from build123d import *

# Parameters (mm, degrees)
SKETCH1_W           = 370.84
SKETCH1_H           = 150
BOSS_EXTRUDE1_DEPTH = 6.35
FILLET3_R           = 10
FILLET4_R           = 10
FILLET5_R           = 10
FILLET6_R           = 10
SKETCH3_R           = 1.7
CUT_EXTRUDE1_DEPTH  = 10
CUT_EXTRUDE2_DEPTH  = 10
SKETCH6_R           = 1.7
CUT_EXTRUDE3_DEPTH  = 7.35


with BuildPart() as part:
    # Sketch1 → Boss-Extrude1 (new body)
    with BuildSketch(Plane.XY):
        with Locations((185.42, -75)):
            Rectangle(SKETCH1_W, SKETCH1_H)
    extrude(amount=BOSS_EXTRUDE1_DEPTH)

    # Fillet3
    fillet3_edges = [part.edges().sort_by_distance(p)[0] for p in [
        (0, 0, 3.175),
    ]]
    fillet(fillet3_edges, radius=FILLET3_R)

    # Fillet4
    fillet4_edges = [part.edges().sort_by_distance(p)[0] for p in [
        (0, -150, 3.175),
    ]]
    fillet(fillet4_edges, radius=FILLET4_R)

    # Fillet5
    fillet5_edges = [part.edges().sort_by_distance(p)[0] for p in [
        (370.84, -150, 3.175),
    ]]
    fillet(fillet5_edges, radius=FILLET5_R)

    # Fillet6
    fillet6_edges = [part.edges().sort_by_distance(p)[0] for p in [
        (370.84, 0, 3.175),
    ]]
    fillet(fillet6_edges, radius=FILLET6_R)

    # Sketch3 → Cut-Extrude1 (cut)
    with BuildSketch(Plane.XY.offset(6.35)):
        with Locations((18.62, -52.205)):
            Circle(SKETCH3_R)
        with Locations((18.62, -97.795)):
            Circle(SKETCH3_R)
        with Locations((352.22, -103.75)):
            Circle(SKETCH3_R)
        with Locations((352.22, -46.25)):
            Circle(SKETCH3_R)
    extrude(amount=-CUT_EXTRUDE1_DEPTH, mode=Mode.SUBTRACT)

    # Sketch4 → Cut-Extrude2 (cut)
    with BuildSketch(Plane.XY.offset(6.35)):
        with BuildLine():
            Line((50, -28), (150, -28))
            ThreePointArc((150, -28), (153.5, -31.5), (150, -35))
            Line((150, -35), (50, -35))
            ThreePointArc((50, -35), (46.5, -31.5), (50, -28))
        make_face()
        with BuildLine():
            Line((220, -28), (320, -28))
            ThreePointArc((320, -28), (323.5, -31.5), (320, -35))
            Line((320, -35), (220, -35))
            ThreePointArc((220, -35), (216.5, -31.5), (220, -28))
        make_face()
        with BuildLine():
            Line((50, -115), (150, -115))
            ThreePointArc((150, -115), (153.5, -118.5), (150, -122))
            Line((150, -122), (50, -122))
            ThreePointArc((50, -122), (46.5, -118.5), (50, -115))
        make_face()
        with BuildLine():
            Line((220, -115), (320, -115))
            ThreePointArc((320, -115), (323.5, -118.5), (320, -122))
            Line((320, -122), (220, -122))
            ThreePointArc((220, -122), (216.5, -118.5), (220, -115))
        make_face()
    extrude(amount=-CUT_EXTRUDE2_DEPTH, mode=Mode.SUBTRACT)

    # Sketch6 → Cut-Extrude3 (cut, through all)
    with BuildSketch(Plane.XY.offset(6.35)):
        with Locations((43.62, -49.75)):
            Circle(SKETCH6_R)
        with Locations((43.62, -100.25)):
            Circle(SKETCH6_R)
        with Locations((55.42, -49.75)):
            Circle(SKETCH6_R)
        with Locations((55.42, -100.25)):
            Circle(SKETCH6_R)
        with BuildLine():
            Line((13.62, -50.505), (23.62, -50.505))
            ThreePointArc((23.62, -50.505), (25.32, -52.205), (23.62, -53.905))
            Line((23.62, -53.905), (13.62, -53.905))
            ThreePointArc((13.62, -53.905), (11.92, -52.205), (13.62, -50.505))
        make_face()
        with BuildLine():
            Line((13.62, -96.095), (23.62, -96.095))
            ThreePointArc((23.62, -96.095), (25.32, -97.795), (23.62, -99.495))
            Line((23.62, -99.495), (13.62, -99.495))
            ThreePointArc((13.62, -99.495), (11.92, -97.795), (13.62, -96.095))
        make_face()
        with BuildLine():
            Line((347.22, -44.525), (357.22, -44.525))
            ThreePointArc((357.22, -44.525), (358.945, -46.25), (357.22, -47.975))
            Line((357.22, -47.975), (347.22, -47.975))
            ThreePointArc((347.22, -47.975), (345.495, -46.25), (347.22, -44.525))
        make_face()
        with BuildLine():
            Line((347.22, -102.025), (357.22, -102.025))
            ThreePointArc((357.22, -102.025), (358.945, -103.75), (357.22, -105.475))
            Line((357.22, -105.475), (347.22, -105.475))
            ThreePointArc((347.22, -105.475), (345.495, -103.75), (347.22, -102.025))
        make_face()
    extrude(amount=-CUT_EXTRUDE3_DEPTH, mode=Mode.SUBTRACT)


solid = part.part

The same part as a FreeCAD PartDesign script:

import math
import FreeCAD as App
import Part
import Sketcher
from FreeCAD import Vector
Q = App.Units.Quantity


def edges_at(feature, points):
    """Names of the edges that pass closest to the given points."""
    edges = feature.Shape.Edges
    near = lambda p: min(range(len(edges)), key=lambda i: edges[i].distToShape(Part.Vertex(*p))[0])
    return sorted({f"Edge{near(p) + 1}" for p in points})


def add_polygon(sketch, points):
    """Adds a closed chain of lines whose ends are joined by coincident constraints."""
    first, n = sketch.GeometryCount, len(points)
    for a, b in zip(points, points[1:] + points[:1]):
        sketch.addGeometry(Part.LineSegment(App.Vector(*a, 0), App.Vector(*b, 0)), False)
    for i in range(n):
        sketch.addConstraint(Sketcher.Constraint("Coincident", first + i, 2, first + (i + 1) % n, 1))

doc = App.newDocument("Part")
body = doc.addObject("PartDesign::Body", "Body")

# Sketch on XY plane
sketch1 = body.newObject("Sketcher::SketchObject", "Sketch")
sketch1.AttachmentSupport = (doc.getObject("XY_Plane"), [""])
sketch1.MapMode = "FlatFace"
add_polygon(sketch1, [(0, 0), (0, -150), (371, -150), (371, 0)])  # lines 0-3
sketch1.addConstraint([
    Sketcher.Constraint("Vertical", 0),
    Sketcher.Constraint("Horizontal", 1),
    Sketcher.Constraint("Vertical", 2),
    Sketcher.Constraint("Horizontal", 3),
    Sketcher.Constraint("Coincident", 3, 2, -1, 1),
    Sketcher.Constraint("DistanceY", 0, 2, 0, 1, Q("150 mm")),
    Sketcher.Constraint("DistanceX", 1, 1, 1, 2, Q("370.84 mm")),
])
pad1 = body.newObject("PartDesign::Pad", "Pad")
pad1.Profile = sketch1
pad1.Length = 6.35
doc.recompute()

fillet = body.newObject("PartDesign::Fillet", "Fillet")
fillet.Base = (pad1, edges_at(pad1, [(0, 0, 3.175)]))
fillet.Radius = 10
doc.recompute()

fillet2 = body.newObject("PartDesign::Fillet", "Fillet001")
fillet2.Base = (fillet, edges_at(fillet, [(0, -150, 3.175)]))
fillet2.Radius = 10
doc.recompute()

fillet3 = body.newObject("PartDesign::Fillet", "Fillet002")
fillet3.Base = (fillet2, edges_at(fillet2, [(370.84, -150, 3.175)]))
fillet3.Radius = 10
doc.recompute()

fillet4 = body.newObject("PartDesign::Fillet", "Fillet003")
fillet4.Base = (fillet3, edges_at(fillet3, [(370.84, 0, 3.175)]))
fillet4.Radius = 10

# Sketch on XY plane
sketch2 = body.newObject("Sketcher::SketchObject", "Sketch001")
sketch2.AttachmentSupport = (doc.getObject("XY_Plane"), [""])
sketch2.MapMode = "FlatFace"
sketch2.AttachmentOffset = App.Placement(Vector(0, 0, 6.35), App.Rotation())
sketch2.addGeometry([
    Part.Circle(Vector(18.6, -52.2, 0), Vector(0, 0, 1), 1.7),
    Part.Circle(Vector(18.6, -97.8, 0), Vector(0, 0, 1), 1.7),
    Part.Circle(Vector(352.2, -103.8, 0), Vector(0, 0, 1), 1.7),
    Part.Circle(Vector(352.2, -46.2, 0), Vector(0, 0, 1), 1.7),
], False)
sketch2.addConstraint([
    Sketcher.Constraint("Equal", 0, 1),
    Sketcher.Constraint("Equal", 1, 2),
    Sketcher.Constraint("Equal", 2, 3),
    Sketcher.Constraint("Vertical", 0, 3, 1, 3),
    Sketcher.Constraint("Vertical", 2, 3, 3, 3),
    Sketcher.Constraint("Diameter", 0, Q("3.4 mm")),
    Sketcher.Constraint("DistanceX", 1, 3, 2, 3, Q("333.6 mm")),
    Sketcher.Constraint("DistanceY", 2, 3, 3, 3, Q("57.5 mm")),
    Sketcher.Constraint("DistanceX", -1, 1, 0, 3, Q("18.62 mm")),
    Sketcher.Constraint("DistanceY", 2, 3, -1, 1, Q("103.75 mm")),
    Sketcher.Constraint("DistanceY", 1, 3, 0, 3, Q("45.59 mm")),
    Sketcher.Constraint("DistanceY", 0, 3, -1, 1, Q("52.205 mm")),
])
pocket1 = body.newObject("PartDesign::Pocket", "Pocket")
pocket1.Profile = sketch2
pocket1.Length = 10

# Sketch on XY plane
sketch3 = body.newObject("Sketcher::SketchObject", "Sketch002")
sketch3.AttachmentSupport = (doc.getObject("XY_Plane"), [""])
sketch3.MapMode = "FlatFace"
sketch3.AttachmentOffset = App.Placement(Vector(0, 0, 6.35), App.Rotation())
sketch3.addGeometry([
    Part.LineSegment(Vector(150, -28, 0), Vector(50, -28, 0)),  # 0
    Part.ArcOfCircle(Part.Circle(Vector(50, -31.5, 0), Vector(0, 0, 1), 3.5), math.radians(90), math.radians(270)),  # 1
    Part.LineSegment(Vector(50, -35, 0), Vector(150, -35, 0)),  # 2
    Part.ArcOfCircle(Part.Circle(Vector(150, -31.5, 0), Vector(0, 0, 1), 3.5), math.radians(-90), math.radians(90)),  # 3
    Part.LineSegment(Vector(320, -28, 0), Vector(220, -28, 0)),  # 4
    Part.ArcOfCircle(Part.Circle(Vector(220, -31.5, 0), Vector(0, 0, 1), 3.5), math.radians(90), math.radians(270)),  # 5
    Part.LineSegment(Vector(220, -35, 0), Vector(320, -35, 0)),  # 6
    Part.ArcOfCircle(Part.Circle(Vector(320, -31.5, 0), Vector(0, 0, 1), 3.5), math.radians(-90), math.radians(90)),  # 7
    Part.LineSegment(Vector(150, -115, 0), Vector(50, -115, 0)),  # 8
    Part.ArcOfCircle(Part.Circle(Vector(50, -118.5, 0), Vector(0, 0, 1), 3.5), math.radians(90), math.radians(270)),  # 9
    Part.LineSegment(Vector(50, -122, 0), Vector(150, -122, 0)),  # 10
    Part.ArcOfCircle(Part.Circle(Vector(150, -118.5, 0), Vector(0, 0, 1), 3.5), math.radians(-90), math.radians(90)),  # 11
    Part.LineSegment(Vector(320, -115, 0), Vector(220, -115, 0)),  # 12
    Part.ArcOfCircle(Part.Circle(Vector(220, -118.5, 0), Vector(0, 0, 1), 3.5), math.radians(90), math.radians(270)),  # 13
    Part.LineSegment(Vector(220, -122, 0), Vector(320, -122, 0)),  # 14
    Part.ArcOfCircle(Part.Circle(Vector(320, -118.5, 0), Vector(0, 0, 1), 3.5), math.radians(-90), math.radians(90)),  # 15
], False)
sketch3.addConstraint([
    Sketcher.Constraint("Tangent", 0, 2, 1, 1),
    Sketcher.Constraint("Tangent", 1, 2, 2, 1),
    Sketcher.Constraint("Tangent", 2, 2, 3, 1),
    Sketcher.Constraint("Tangent", 3, 2, 0, 1),
    Sketcher.Constraint("Tangent", 4, 2, 5, 1),
    Sketcher.Constraint("Tangent", 5, 2, 6, 1),
    Sketcher.Constraint("Tangent", 6, 2, 7, 1),
    Sketcher.Constraint("Tangent", 7, 2, 4, 1),
    Sketcher.Constraint("Tangent", 8, 2, 9, 1),
    Sketcher.Constraint("Tangent", 9, 2, 10, 1),
    Sketcher.Constraint("Tangent", 10, 2, 11, 1),
    Sketcher.Constraint("Tangent", 11, 2, 8, 1),
    Sketcher.Constraint("Tangent", 12, 2, 13, 1),
    Sketcher.Constraint("Tangent", 13, 2, 14, 1),
    Sketcher.Constraint("Tangent", 14, 2, 15, 1),
    Sketcher.Constraint("Tangent", 15, 2, 12, 1),
    Sketcher.Constraint("Horizontal", 0),
    Sketcher.Constraint("Horizontal", 2),
    Sketcher.Constraint("Horizontal", 4),
    Sketcher.Constraint("Horizontal", 6),
    Sketcher.Constraint("Horizontal", 8),
    Sketcher.Constraint("Horizontal", 10),
    Sketcher.Constraint("Horizontal", 12),
    Sketcher.Constraint("Horizontal", 14),
    Sketcher.Constraint("Equal", 3, 5),
    Sketcher.Constraint("Equal", 7, 9),
    Sketcher.Constraint("Equal", 11, 13),
    Sketcher.Constraint("Horizontal", 3, 3, 5, 3),
    Sketcher.Constraint("Horizontal", 11, 3, 13, 3),
    Sketcher.Constraint("Vertical", 1, 3, 9, 3),
    Sketcher.Constraint("Vertical", 3, 3, 11, 3),
    Sketcher.Constraint("Vertical", 5, 3, 13, 3),
    Sketcher.Constraint("Vertical", 7, 3, 15, 3),
    Sketcher.Constraint("Equal", 2, 4),
    Sketcher.Constraint("Radius", 1, Q("3.5 mm")),
    Sketcher.Constraint("DistanceX", 0, 2, 0, 1, Q("100 mm")),
    Sketcher.Constraint("DistanceX", -1, 1, 1, 3, Q("50 mm")),
    Sketcher.Constraint("DistanceX", -1, 1, 5, 3, Q("220 mm")),
    Sketcher.Constraint("DistanceY", 0, 2, -1, 1, Q("28 mm")),
    Sketcher.Constraint("DistanceY", 8, 2, -1, 1, Q("115 mm")),
])
pocket2 = body.newObject("PartDesign::Pocket", "Pocket001")
pocket2.Profile = sketch3
pocket2.Length = 10

# Sketch on XY plane
sketch4 = body.newObject("Sketcher::SketchObject", "Sketch003")
sketch4.AttachmentSupport = (doc.getObject("XY_Plane"), [""])
sketch4.MapMode = "FlatFace"
sketch4.AttachmentOffset = App.Placement(Vector(0, 0, 6.35), App.Rotation())
sketch4.addGeometry([
    Part.Circle(Vector(43.6, -49.8, 0), Vector(0, 0, 1), 1.7),  # 0
    Part.Circle(Vector(43.6, -100.2, 0), Vector(0, 0, 1), 1.7),  # 1
    Part.Circle(Vector(55.4, -49.8, 0), Vector(0, 0, 1), 1.7),  # 2
    Part.Circle(Vector(55.4, -100.2, 0), Vector(0, 0, 1), 1.7),  # 3
    Part.LineSegment(Vector(23.6, -50.5, 0), Vector(13.6, -50.5, 0)),  # 4
    Part.ArcOfCircle(Part.Circle(Vector(13.6, -52.2, 0), Vector(0, 0, 1), 1.7), math.radians(90), math.radians(270)),  # 5
    Part.LineSegment(Vector(13.6, -53.9, 0), Vector(23.6, -53.9, 0)),  # 6
    Part.ArcOfCircle(Part.Circle(Vector(23.6, -52.2, 0), Vector(0, 0, 1), 1.7), math.radians(-90), math.radians(90)),  # 7
    Part.LineSegment(Vector(23.6, -96.1, 0), Vector(13.6, -96.1, 0)),  # 8
    Part.ArcOfCircle(Part.Circle(Vector(13.6, -97.8, 0), Vector(0, 0, 1), 1.7), math.radians(90), math.radians(270)),  # 9
    Part.LineSegment(Vector(13.6, -99.5, 0), Vector(23.6, -99.5, 0)),  # 10
    Part.ArcOfCircle(Part.Circle(Vector(23.6, -97.8, 0), Vector(0, 0, 1), 1.7), math.radians(-90), math.radians(90)),  # 11
    Part.LineSegment(Vector(357.2, -44.5, 0), Vector(347.2, -44.5, 0)),  # 12
    Part.ArcOfCircle(Part.Circle(Vector(347.2, -46.2, 0), Vector(0, 0, 1), 1.7), math.radians(90), math.radians(270)),  # 13
    Part.LineSegment(Vector(347.2, -48, 0), Vector(357.2, -48, 0)),  # 14
    Part.ArcOfCircle(Part.Circle(Vector(357.2, -46.2, 0), Vector(0, 0, 1), 1.7), math.radians(-90), math.radians(90)),  # 15
    Part.LineSegment(Vector(357.2, -102, 0), Vector(347.2, -102, 0)),  # 16
    Part.ArcOfCircle(Part.Circle(Vector(347.2, -103.8, 0), Vector(0, 0, 1), 1.7), math.radians(90), math.radians(270)),  # 17
    Part.LineSegment(Vector(347.2, -105.5, 0), Vector(357.2, -105.5, 0)),  # 18
    Part.ArcOfCircle(Part.Circle(Vector(357.2, -103.8, 0), Vector(0, 0, 1), 1.7), math.radians(-90), math.radians(90)),  # 19
], False)
sketch4.addConstraint([
    Sketcher.Constraint("Tangent", 4, 2, 5, 1),
    Sketcher.Constraint("Tangent", 5, 2, 6, 1),
    Sketcher.Constraint("Tangent", 6, 2, 7, 1),
    Sketcher.Constraint("Tangent", 7, 2, 4, 1),
    Sketcher.Constraint("Tangent", 8, 2, 9, 1),
    Sketcher.Constraint("Tangent", 9, 2, 10, 1),
    Sketcher.Constraint("Tangent", 10, 2, 11, 1),
    Sketcher.Constraint("Tangent", 11, 2, 8, 1),
    Sketcher.Constraint("Tangent", 12, 2, 13, 1),
    Sketcher.Constraint("Tangent", 13, 2, 14, 1),
    Sketcher.Constraint("Tangent", 14, 2, 15, 1),
    Sketcher.Constraint("Tangent", 15, 2, 12, 1),
    Sketcher.Constraint("Tangent", 16, 2, 17, 1),
    Sketcher.Constraint("Tangent", 17, 2, 18, 1),
    Sketcher.Constraint("Tangent", 18, 2, 19, 1),
    Sketcher.Constraint("Tangent", 19, 2, 16, 1),
    Sketcher.Constraint("Horizontal", 4),
    Sketcher.Constraint("Horizontal", 6),
    Sketcher.Constraint("Horizontal", 8),
    Sketcher.Constraint("Horizontal", 10),
    Sketcher.Constraint("Horizontal", 12),
    Sketcher.Constraint("Horizontal", 14),
    Sketcher.Constraint("Horizontal", 16),
    Sketcher.Constraint("Horizontal", 18),
    Sketcher.Constraint("Equal", 0, 1),
    Sketcher.Constraint("Equal", 1, 2),
    Sketcher.Constraint("Equal", 2, 3),
    Sketcher.Constraint("Equal", 3, 5),
    Sketcher.Constraint("Equal", 7, 9),
    Sketcher.Constraint("Equal", 15, 17),
    Sketcher.Constraint("Horizontal", 0, 3, 2, 3),
    Sketcher.Constraint("Horizontal", 1, 3, 3, 3),
    Sketcher.Constraint("Vertical", 0, 3, 1, 3),
    Sketcher.Constraint("Vertical", 2, 3, 3, 3),
    Sketcher.Constraint("Vertical", 5, 3, 9, 3),
    Sketcher.Constraint("Vertical", 7, 3, 11, 3),
    Sketcher.Constraint("Vertical", 13, 3, 17, 3),
    Sketcher.Constraint("Vertical", 15, 3, 19, 3),
    Sketcher.Constraint("Equal", 10, 12),
    Sketcher.Constraint("Diameter", 0, Q("3.4 mm")),
    Sketcher.Constraint("DistanceX", 4, 2, 4, 1, Q("10 mm")),
    Sketcher.Constraint("Radius", 13, Q("1.725 mm")),
    Sketcher.Constraint("DistanceX", 5, 3, 0, 3, Q("30 mm")),
    Sketcher.Constraint("DistanceY", 3, 3, 13, 3, Q("54 mm")),
    Sketcher.Constraint("DistanceY", 17, 3, 2, 3, Q("54 mm")),
    Sketcher.Constraint("DistanceY", 1, 3, 0, 3, Q("50.5 mm")),
    Sketcher.Constraint("DistanceX", 0, 3, 2, 3, Q("11.8 mm")),
    Sketcher.Constraint("DistanceX", 2, 3, 13, 3, Q("291.8 mm")),
    Sketcher.Constraint("DistanceX", -1, 1, 0, 3, Q("43.62 mm")),
    Sketcher.Constraint("DistanceY", 0, 3, -1, 1, Q("49.75 mm")),
    Sketcher.Constraint("DistanceY", 9, 3, 5, 3, Q("45.59 mm")),
    Sketcher.Constraint("DistanceY", 5, 3, -1, 1, Q("52.205 mm")),
])
pocket3 = body.newObject("PartDesign::Pocket", "Pocket002")
pocket3.Profile = sketch4
pocket3.Type = "ThroughAll"

doc.recompute()
